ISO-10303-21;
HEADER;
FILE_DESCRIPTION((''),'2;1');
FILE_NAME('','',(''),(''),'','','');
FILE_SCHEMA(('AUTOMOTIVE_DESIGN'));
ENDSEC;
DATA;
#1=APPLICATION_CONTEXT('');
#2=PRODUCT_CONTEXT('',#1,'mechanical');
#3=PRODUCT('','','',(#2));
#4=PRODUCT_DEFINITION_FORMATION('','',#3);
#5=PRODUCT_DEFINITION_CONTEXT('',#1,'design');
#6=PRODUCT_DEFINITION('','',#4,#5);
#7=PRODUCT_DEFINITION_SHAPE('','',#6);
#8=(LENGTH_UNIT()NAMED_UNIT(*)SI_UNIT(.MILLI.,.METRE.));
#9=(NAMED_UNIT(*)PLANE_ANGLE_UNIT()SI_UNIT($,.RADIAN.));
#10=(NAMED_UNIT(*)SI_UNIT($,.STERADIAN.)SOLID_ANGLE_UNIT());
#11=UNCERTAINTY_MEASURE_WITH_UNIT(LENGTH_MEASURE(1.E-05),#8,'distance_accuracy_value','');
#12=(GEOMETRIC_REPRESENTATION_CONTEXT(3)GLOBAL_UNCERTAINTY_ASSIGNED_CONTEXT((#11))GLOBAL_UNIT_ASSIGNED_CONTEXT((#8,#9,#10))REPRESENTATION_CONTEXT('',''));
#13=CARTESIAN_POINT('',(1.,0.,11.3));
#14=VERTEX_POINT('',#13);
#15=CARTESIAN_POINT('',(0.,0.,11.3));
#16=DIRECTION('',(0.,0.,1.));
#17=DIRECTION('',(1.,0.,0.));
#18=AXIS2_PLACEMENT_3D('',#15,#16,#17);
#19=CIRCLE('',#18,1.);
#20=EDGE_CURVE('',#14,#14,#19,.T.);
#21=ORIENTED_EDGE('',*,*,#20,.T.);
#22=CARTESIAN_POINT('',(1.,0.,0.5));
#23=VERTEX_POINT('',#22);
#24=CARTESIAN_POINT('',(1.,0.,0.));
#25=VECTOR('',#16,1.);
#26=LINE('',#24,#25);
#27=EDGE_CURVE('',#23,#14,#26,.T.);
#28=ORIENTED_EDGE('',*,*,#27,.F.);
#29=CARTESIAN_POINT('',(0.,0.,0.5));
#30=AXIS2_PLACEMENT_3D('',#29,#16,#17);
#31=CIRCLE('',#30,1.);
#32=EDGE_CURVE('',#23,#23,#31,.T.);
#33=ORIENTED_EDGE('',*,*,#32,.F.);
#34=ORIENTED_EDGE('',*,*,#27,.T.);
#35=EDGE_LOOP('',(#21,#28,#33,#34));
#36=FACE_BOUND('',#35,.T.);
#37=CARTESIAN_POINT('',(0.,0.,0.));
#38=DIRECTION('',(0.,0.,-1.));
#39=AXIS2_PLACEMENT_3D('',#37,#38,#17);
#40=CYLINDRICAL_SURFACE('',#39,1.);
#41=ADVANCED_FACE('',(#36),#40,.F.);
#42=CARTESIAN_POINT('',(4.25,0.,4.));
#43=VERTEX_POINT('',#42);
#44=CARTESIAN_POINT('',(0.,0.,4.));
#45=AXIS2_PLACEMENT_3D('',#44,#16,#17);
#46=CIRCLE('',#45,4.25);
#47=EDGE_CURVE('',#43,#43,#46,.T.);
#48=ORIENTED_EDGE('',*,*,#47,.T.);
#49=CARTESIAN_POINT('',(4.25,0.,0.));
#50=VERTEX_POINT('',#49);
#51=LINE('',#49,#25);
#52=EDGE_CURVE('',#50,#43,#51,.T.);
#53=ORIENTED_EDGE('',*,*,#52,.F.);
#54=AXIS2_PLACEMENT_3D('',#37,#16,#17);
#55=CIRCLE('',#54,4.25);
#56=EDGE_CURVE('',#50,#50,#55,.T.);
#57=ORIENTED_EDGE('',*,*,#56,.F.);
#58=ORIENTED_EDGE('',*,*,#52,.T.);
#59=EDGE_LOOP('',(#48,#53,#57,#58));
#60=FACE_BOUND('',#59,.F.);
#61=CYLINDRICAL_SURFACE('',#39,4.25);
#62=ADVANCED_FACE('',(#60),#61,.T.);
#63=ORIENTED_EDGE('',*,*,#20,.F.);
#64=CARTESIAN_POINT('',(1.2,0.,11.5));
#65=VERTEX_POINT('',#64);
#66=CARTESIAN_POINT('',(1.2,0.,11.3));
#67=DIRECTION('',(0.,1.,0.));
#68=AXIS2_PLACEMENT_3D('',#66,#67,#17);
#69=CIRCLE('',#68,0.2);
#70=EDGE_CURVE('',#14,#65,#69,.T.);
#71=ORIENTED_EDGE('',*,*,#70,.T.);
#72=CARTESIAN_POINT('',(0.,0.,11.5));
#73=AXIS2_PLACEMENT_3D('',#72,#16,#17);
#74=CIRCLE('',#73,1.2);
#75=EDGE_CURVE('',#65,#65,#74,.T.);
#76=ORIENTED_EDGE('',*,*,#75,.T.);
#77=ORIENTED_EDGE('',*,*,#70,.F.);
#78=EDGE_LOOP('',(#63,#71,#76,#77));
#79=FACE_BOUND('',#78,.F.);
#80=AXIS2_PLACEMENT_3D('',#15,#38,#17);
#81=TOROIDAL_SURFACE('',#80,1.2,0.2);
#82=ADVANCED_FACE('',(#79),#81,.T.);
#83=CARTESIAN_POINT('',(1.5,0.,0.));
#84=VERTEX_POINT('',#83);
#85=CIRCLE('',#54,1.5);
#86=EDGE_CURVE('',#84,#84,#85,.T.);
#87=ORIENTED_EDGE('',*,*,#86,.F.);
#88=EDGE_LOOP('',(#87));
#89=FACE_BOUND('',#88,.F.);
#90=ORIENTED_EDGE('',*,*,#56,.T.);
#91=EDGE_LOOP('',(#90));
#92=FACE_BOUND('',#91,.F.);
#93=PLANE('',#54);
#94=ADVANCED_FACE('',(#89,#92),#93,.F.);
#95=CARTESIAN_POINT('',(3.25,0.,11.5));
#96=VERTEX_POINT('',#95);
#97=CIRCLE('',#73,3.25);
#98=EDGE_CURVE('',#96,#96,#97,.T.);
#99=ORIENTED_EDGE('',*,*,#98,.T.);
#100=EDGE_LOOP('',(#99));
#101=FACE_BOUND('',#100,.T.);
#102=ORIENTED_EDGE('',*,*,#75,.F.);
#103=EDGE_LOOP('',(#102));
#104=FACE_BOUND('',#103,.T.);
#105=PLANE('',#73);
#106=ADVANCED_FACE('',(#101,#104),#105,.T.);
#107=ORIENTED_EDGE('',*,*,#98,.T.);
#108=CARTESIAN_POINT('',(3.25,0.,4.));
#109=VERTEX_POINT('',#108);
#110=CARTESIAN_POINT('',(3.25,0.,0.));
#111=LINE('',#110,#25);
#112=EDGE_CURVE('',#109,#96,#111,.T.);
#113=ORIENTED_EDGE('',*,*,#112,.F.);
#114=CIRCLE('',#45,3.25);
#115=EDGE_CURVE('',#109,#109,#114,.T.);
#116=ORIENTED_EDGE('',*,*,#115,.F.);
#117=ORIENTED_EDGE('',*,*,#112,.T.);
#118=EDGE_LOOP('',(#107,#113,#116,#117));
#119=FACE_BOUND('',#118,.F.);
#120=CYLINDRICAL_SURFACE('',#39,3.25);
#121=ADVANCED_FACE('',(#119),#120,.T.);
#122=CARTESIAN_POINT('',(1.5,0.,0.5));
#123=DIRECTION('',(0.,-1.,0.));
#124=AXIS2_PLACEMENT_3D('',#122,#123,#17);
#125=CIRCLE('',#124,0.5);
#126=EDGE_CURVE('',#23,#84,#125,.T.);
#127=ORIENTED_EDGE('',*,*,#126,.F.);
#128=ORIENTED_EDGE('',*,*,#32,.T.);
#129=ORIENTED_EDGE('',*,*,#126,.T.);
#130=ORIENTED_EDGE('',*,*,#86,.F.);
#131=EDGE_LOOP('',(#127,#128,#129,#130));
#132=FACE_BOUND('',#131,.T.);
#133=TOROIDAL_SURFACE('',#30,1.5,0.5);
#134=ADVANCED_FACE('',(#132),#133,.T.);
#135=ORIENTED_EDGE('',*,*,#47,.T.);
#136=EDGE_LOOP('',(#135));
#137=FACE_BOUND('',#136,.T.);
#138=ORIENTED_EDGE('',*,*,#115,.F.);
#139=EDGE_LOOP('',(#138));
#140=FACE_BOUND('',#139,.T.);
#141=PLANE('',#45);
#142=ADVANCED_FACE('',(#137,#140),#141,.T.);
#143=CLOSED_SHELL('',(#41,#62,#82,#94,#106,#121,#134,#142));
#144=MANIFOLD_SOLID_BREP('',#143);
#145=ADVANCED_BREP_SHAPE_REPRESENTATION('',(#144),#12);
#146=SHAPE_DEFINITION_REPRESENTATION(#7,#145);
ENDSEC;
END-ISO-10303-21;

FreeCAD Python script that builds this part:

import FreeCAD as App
import Part
import Sketcher

V = App.Vector
Q = App.Units.Quantity


def edges_at(feature, points):
    """Names of the edges that pass closest to the given points."""
    edges = feature.Shape.Edges
    near = lambda p: min(range(len(edges)), key=lambda i: edges[i].distToShape(Part.Vertex(*p))[0])
    return sorted({f"Edge{near(p) + 1}" for p in points})

doc = App.newDocument("Part")
params = doc.addObject("Spreadsheet::Sheet", "Params")
for row, (alias, value) in enumerate([
    ("sketch1_diameter", "2 mm"),
    ("sketch1_diameter2", "6.5 mm"),
    ("pad1_length", "11.5 mm"),
    ("sketch2_diameter", "8.5 mm"),
    ("sketch2_diameter2", "6.5 mm"),
    ("pad2_length", "4 mm"),
    ("fillet_radius", "0.2 mm"),
    ("fillet2_radius", "0.5 mm"),
], start=1):
    params.set(f"A{row}", alias)
    params.set(f"B{row}", "=" + value)
    params.setAlias(f"B{row}", alias)

body = doc.addObject("PartDesign::Body", "Body")

sketch1 = body.newObject("Sketcher::SketchObject", "Sketch")
sketch1.AttachmentSupport = (doc.getObject("XY_Plane"), [""])
sketch1.MapMode = "FlatFace"
sketch1.addGeometry([
    Part.Circle(V(0, 0, 0), V(0, 0, 1), 3.2),
    Part.Circle(V(0, 0, 0), V(0, 0, 1), 1),
], False)
sketch1.addConstraint([
    Sketcher.Constraint("Coincident", 0, 3, -1, 1),
    Sketcher.Constraint("Coincident", 1, 3, -1, 1),
    Sketcher.Constraint("Diameter", 1, Q("2 mm")),
    Sketcher.Constraint("Diameter", 0, Q("6.5 mm")),
])
sketch1.setExpression("Constraints[2]", "Params.sketch1_diameter")
sketch1.setExpression("Constraints[3]", "Params.sketch1_diameter2")
pad1 = body.newObject("PartDesign::Pad", "Pad")
pad1.Profile = sketch1
pad1.setExpression("Length", "Params.pad1_length")

sketch2 = body.newObject("Sketcher::SketchObject", "Sketch001")
sketch2.AttachmentSupport = (doc.getObject("XY_Plane"), [""])
sketch2.MapMode = "FlatFace"
sketch2.addGeometry([
    Part.Circle(V(0, 0, 0), V(0, 0, 1), 4.2),
    Part.Circle(V(0, 0, 0), V(0, 0, 1), 3.2),
], False)
sketch2.addConstraint([
    Sketcher.Constraint("Coincident", 0, 3, -1, 1),
    Sketcher.Constraint("Coincident", 1, 3, -1, 1),
    Sketcher.Constraint("Diameter", 0, Q("8.5 mm")),
    Sketcher.Constraint("Diameter", 1, Q("6.5 mm")),
])
sketch2.setExpression("Constraints[2]", "Params.sketch2_diameter")
sketch2.setExpression("Constraints[3]", "Params.sketch2_diameter2")
pad2 = body.newObject("PartDesign::Pad", "Pad001")
pad2.Profile = sketch2
pad2.setExpression("Length", "Params.pad2_length")
doc.recompute()

fillet = body.newObject("PartDesign::Fillet", "Fillet")
fillet.Base = (pad2, edges_at(pad2, [(-1, 0, 11.5)]))
fillet.setExpression("Radius", "Params.fillet_radius")
doc.recompute()

fillet2 = body.newObject("PartDesign::Fillet", "Fillet001")
fillet2.Base = (fillet, edges_at(fillet, [(-1, 0, 0)]))
fillet2.setExpression("Radius", "Params.fillet2_radius")

doc.recompute()
